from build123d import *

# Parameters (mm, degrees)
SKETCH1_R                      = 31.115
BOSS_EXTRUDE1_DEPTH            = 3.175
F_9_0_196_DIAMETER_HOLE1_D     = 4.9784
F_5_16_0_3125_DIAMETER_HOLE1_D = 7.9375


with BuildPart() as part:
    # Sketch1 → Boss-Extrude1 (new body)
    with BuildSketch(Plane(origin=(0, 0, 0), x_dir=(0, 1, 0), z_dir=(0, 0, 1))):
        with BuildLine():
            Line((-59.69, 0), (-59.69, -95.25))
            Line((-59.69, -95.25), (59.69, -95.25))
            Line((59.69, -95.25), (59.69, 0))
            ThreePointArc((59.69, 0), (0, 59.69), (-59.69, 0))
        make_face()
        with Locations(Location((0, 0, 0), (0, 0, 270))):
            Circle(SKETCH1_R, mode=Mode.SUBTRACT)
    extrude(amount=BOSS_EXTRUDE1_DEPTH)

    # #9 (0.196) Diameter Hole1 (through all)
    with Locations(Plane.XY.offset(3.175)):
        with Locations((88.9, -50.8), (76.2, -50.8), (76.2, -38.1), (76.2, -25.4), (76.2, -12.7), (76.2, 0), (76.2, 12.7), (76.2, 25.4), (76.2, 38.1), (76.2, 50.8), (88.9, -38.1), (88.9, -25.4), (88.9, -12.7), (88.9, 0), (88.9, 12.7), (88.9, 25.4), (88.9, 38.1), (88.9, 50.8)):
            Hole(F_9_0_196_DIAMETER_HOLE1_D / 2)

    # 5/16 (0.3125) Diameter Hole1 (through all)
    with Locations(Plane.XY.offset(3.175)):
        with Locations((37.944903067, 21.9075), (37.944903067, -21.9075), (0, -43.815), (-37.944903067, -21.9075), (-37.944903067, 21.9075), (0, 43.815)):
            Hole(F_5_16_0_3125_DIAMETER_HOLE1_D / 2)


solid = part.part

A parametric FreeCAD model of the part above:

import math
import FreeCAD as App
import Part
import Sketcher
from FreeCAD import Vector
Q = App.Units.Quantity

doc = App.newDocument("Part")
body = doc.addObject("PartDesign::Body", "Body")

# Sketch on XY plane
sketch1 = doc.addObject("Sketcher::SketchObject", "Sketch")
body.addObject(sketch1)
sketch1.AttachmentSupport = (doc.XY_Plane, [""])
sketch1.MapMode = "FlatFace"
sketch1.addGeometry([
    Part.LineSegment(Vector(0, -59.69, 0), Vector(95.25, -59.69, 0)),  # 0
    Part.LineSegment(Vector(95.25, -59.69, 0), Vector(95.25, 59.69, 0)),  # 1
    Part.LineSegment(Vector(95.25, 59.69, 0), Vector(0, 59.69, 0)),  # 2
    Part.ArcOfCircle(Part.Circle(Vector(0, 0, 0), Vector(0, 0, 1), 59.69), math.radians(90), math.radians(270)),  # 3
    Part.Circle(Vector(0, 0, 0), Vector(0, 0, 1), 31.115),  # 4
], False)
sketch1.addConstraint([
    Sketcher.Constraint("Coincident", 0, 2, 1, 1),
    Sketcher.Constraint("Coincident", 1, 2, 2, 1),
    Sketcher.Constraint("Tangent", 2, 2, 3, 1),
    Sketcher.Constraint("Tangent", 3, 2, 0, 1),
    Sketcher.Constraint("Horizontal", 0),
    Sketcher.Constraint("Vertical", 1),
    Sketcher.Constraint("Horizontal", 2),
    Sketcher.Constraint("Coincident", 3, 3, -1, 1),
    Sketcher.Constraint("Coincident", 4, 3, -1, 1),
    Sketcher.Constraint("Diameter", 4, Q("2.45 in")),
    Sketcher.Constraint("Radius", 3, Q("2.35 in")),
    Sketcher.Constraint("DistanceX", 0, 1, 0, 2, Q("3.75 in")),
])
pad1 = doc.addObject("PartDesign::Pad", "Pad")
body.addObject(pad1)
pad1.Profile = sketch1
pad1.Length = Q("0.125 in")

# Sketch on XY plane
sketch2 = doc.addObject("Sketcher::SketchObject", "Sketch001")
body.addObject(sketch2)
sketch2.AttachmentSupport = (doc.XY_Plane, [""])
sketch2.MapMode = "FlatFace"
sketch2.AttachmentOffset = App.Placement(Vector(0, 0, 0.125 * 25.4), App.Rotation())
sketch2.addGeometry([
    Part.Circle(Vector(88.9, -50.8, 0), Vector(0, 0, 1), 2.4892),  # 0
    Part.Circle(Vector(76.2, -50.8, 0), Vector(0, 0, 1), 2.4892),  # 1
    Part.Circle(Vector(76.2, -38.1, 0), Vector(0, 0, 1), 2.4892),  # 2
    Part.Circle(Vector(76.2, -25.4, 0), Vector(0, 0, 1), 2.4892),  # 3
    Part.Circle(Vector(76.2, -12.7, 0), Vector(0, 0, 1), 2.4892),  # 4
    Part.Circle(Vector(76.2, 0, 0), Vector(0, 0, 1), 2.4892),  # 5
    Part.Circle(Vector(76.2, 12.7, 0), Vector(0, 0, 1), 2.4892),  # 6
    Part.Circle(Vector(76.2, 25.4, 0), Vector(0, 0, 1), 2.4892),  # 7
    Part.Circle(Vector(76.2, 38.1, 0), Vector(0, 0, 1), 2.4892),  # 8
    Part.Circle(Vector(76.2, 50.8, 0), Vector(0, 0, 1), 2.4892),  # 9
    Part.Circle(Vector(88.9, -38.1, 0), Vector(0, 0, 1), 2.4892),  # 10
    Part.Circle(Vector(88.9, -25.4, 0), Vector(0, 0, 1), 2.4892),  # 11
    Part.Circle(Vector(88.9, -12.7, 0), Vector(0, 0, 1), 2.4892),  # 12
    Part.Circle(Vector(88.9, 0, 0), Vector(0, 0, 1), 2.4892),  # 13
    Part.Circle(Vector(88.9, 12.7, 0), Vector(0, 0, 1), 2.4892),  # 14
    Part.Circle(Vector(88.9, 25.4, 0), Vector(0, 0, 1), 2.4892),  # 15
    Part.Circle(Vector(88.9, 38.1, 0), Vector(0, 0, 1), 2.4892),  # 16
    Part.Circle(Vector(88.9, 50.8, 0), Vector(0, 0, 1), 2.4892),  # 17
], False)
sketch2.addConstraint([
    Sketcher.Constraint("Equal", 0, 1),
    Sketcher.Constraint("Equal", 1, 2),
    Sketcher.Constraint("Equal", 2, 3),
    Sketcher.Constraint("Equal", 3, 4),
    Sketcher.Constraint("Equal", 4, 5),
    Sketcher.Constraint("Equal", 5, 6),
    Sketcher.Constraint("Equal", 6, 7),
    Sketcher.Constraint("Equal", 7, 8),
    Sketcher.Constraint("Equal", 8, 9),
    Sketcher.Constraint("Equal", 9, 10),
    Sketcher.Constraint("Equal", 10, 11),
    Sketcher.Constraint("Equal", 11, 12),
    Sketcher.Constraint("Equal", 12, 13),
    Sketcher.Constraint("Equal", 13, 14),
    Sketcher.Constraint("Equal", 14, 15),
    Sketcher.Constraint("Equal", 15, 16),
    Sketcher.Constraint("Equal", 16, 17),
    Sketcher.Constraint("Symmetric", 4, 3, 6, 3, -1),
    Sketcher.Constraint("Symmetric", 3, 3, 7, 3, -1),
    Sketcher.Constraint("Symmetric", 2, 3, 8, 3, -1),
    Sketcher.Constraint("Symmetric", 1, 3, 9, 3, -1),
    Sketcher.Constraint("Symmetric", 12, 3, 14, 3, -1),
    Sketcher.Constraint("Symmetric", 11, 3, 15, 3, -1),
    Sketcher.Constraint("Symmetric", 10, 3, 16, 3, -1),
    Sketcher.Constraint("Symmetric", 0, 3, 17, 3, -1),
    Sketcher.Constraint("PointOnObject", 5, 3, -1),
    Sketcher.Constraint("PointOnObject", 13, 3, -1),
    Sketcher.Constraint("Horizontal", 0, 3, 1, 3),
    Sketcher.Constraint("Horizontal", 2, 3, 10, 3),
    Sketcher.Constraint("Horizontal", 3, 3, 11, 3),
    Sketcher.Constraint("Horizontal", 4, 3, 12, 3),
    Sketcher.Constraint("Vertical", 1, 3, 2, 3),
    Sketcher.Constraint("Vertical", 2, 3, 3, 3),
    Sketcher.Constraint("Vertical", 3, 3, 4, 3),
    Sketcher.Constraint("Vertical", 4, 3, 5, 3),
    Sketcher.Constraint("Vertical", 0, 3, 10, 3),
    Sketcher.Constraint("Vertical", 10, 3, 11, 3),
    Sketcher.Constraint("Vertical", 11, 3, 12, 3),
    Sketcher.Constraint("Vertical", 12, 3, 13, 3),
    Sketcher.Constraint("Diameter", 0, Q("0.196 in")),
    Sketcher.Constraint("DistanceY", 0, 3, -1, 1, Q("2 in")),
    Sketcher.Constraint("DistanceX", -1, 1, 1, 3, Q("3 in")),
    Sketcher.Constraint("DistanceY", 3, 3, -1, 1, Q("1 in")),
    Sketcher.Constraint("DistanceY", 2, 3, 4, 3, Q("1 in")),
    Sketcher.Constraint("DistanceY", 4, 3, 6, 3, Q("1 in")),
    Sketcher.Constraint("DistanceX", -1, 1, 0, 3, Q("3.5 in")),
])
doc.recompute()
hole = doc.addObject("PartDesign::Hole", "Hole")
body.addObject(hole)
hole.Profile = sketch2
hole.ThreadType = "None"
hole.Diameter = Q("0.196 in")
hole.DepthType = "ThroughAll"

# Sketch on XY plane
sketch3 = doc.addObject("Sketcher::SketchObject", "Sketch002")
body.addObject(sketch3)
sketch3.AttachmentSupport = (doc.XY_Plane, [""])
sketch3.MapMode = "FlatFace"
sketch3.AttachmentOffset = App.Placement(Vector(0, 0, 0.125 * 25.4), App.Rotation())
sketch3.addGeometry([
    Part.Circle(Vector(37.944903, 21.9075, 0), Vector(0, 0, 1), 3.96875),  # 0
    Part.Circle(Vector(37.944903, -21.9075, 0), Vector(0, 0, 1), 3.96875),  # 1
    Part.Circle(Vector(0, -43.815, 0), Vector(0, 0, 1), 3.96875),  # 2
    Part.Circle(Vector(-37.944903, -21.9075, 0), Vector(0, 0, 1), 3.96875),  # 3
    Part.Circle(Vector(-37.944903, 21.9075, 0), Vector(0, 0, 1), 3.96875),  # 4
    Part.Circle(Vector(0, 43.815, 0), Vector(0, 0, 1), 3.96875),  # 5
], False)
sketch3.addConstraint([
    Sketcher.Constraint("Equal", 0, 1),
    Sketcher.Constraint("Equal", 1, 2),
    Sketcher.Constraint("Equal", 2, 3),
    Sketcher.Constraint("Equal", 3, 4),
    Sketcher.Constraint("Equal", 4, 5),
    Sketcher.Constraint("Symmetric", 0, 3, 3, 3, -1, 1),
    Sketcher.Constraint("Symmetric", 1, 3, 4, 3, -1, 1),
    Sketcher.Constraint("Symmetric", 2, 3, 5, 3, -1, 1),
    Sketcher.Constraint("Symmetric", 1, 3, 3, 3, -2),
    Sketcher.Constraint("PointOnObject", 2, 3, -2),
    Sketcher.Constraint("Diameter", 0, Q("0.3125 in")),
    Sketcher.Constraint("DistanceY", 2, 3, 5, 3, Q("3.45 in")),
    Sketcher.Constraint("DistanceY", 1, 3, 0, 3, Q("1.725 in")),
    Sketcher.Constraint("DistanceX", -1, 1, 0, 3, Q("37.944903 mm")),
])
doc.recompute()
hole2 = doc.addObject("PartDesign::Hole", "Hole001")
body.addObject(hole2)
hole2.Profile = sketch3
hole2.ThreadType = "None"
hole2.Diameter = Q("0.3125 in")
hole2.DepthType = "ThroughAll"

doc.recompute()
